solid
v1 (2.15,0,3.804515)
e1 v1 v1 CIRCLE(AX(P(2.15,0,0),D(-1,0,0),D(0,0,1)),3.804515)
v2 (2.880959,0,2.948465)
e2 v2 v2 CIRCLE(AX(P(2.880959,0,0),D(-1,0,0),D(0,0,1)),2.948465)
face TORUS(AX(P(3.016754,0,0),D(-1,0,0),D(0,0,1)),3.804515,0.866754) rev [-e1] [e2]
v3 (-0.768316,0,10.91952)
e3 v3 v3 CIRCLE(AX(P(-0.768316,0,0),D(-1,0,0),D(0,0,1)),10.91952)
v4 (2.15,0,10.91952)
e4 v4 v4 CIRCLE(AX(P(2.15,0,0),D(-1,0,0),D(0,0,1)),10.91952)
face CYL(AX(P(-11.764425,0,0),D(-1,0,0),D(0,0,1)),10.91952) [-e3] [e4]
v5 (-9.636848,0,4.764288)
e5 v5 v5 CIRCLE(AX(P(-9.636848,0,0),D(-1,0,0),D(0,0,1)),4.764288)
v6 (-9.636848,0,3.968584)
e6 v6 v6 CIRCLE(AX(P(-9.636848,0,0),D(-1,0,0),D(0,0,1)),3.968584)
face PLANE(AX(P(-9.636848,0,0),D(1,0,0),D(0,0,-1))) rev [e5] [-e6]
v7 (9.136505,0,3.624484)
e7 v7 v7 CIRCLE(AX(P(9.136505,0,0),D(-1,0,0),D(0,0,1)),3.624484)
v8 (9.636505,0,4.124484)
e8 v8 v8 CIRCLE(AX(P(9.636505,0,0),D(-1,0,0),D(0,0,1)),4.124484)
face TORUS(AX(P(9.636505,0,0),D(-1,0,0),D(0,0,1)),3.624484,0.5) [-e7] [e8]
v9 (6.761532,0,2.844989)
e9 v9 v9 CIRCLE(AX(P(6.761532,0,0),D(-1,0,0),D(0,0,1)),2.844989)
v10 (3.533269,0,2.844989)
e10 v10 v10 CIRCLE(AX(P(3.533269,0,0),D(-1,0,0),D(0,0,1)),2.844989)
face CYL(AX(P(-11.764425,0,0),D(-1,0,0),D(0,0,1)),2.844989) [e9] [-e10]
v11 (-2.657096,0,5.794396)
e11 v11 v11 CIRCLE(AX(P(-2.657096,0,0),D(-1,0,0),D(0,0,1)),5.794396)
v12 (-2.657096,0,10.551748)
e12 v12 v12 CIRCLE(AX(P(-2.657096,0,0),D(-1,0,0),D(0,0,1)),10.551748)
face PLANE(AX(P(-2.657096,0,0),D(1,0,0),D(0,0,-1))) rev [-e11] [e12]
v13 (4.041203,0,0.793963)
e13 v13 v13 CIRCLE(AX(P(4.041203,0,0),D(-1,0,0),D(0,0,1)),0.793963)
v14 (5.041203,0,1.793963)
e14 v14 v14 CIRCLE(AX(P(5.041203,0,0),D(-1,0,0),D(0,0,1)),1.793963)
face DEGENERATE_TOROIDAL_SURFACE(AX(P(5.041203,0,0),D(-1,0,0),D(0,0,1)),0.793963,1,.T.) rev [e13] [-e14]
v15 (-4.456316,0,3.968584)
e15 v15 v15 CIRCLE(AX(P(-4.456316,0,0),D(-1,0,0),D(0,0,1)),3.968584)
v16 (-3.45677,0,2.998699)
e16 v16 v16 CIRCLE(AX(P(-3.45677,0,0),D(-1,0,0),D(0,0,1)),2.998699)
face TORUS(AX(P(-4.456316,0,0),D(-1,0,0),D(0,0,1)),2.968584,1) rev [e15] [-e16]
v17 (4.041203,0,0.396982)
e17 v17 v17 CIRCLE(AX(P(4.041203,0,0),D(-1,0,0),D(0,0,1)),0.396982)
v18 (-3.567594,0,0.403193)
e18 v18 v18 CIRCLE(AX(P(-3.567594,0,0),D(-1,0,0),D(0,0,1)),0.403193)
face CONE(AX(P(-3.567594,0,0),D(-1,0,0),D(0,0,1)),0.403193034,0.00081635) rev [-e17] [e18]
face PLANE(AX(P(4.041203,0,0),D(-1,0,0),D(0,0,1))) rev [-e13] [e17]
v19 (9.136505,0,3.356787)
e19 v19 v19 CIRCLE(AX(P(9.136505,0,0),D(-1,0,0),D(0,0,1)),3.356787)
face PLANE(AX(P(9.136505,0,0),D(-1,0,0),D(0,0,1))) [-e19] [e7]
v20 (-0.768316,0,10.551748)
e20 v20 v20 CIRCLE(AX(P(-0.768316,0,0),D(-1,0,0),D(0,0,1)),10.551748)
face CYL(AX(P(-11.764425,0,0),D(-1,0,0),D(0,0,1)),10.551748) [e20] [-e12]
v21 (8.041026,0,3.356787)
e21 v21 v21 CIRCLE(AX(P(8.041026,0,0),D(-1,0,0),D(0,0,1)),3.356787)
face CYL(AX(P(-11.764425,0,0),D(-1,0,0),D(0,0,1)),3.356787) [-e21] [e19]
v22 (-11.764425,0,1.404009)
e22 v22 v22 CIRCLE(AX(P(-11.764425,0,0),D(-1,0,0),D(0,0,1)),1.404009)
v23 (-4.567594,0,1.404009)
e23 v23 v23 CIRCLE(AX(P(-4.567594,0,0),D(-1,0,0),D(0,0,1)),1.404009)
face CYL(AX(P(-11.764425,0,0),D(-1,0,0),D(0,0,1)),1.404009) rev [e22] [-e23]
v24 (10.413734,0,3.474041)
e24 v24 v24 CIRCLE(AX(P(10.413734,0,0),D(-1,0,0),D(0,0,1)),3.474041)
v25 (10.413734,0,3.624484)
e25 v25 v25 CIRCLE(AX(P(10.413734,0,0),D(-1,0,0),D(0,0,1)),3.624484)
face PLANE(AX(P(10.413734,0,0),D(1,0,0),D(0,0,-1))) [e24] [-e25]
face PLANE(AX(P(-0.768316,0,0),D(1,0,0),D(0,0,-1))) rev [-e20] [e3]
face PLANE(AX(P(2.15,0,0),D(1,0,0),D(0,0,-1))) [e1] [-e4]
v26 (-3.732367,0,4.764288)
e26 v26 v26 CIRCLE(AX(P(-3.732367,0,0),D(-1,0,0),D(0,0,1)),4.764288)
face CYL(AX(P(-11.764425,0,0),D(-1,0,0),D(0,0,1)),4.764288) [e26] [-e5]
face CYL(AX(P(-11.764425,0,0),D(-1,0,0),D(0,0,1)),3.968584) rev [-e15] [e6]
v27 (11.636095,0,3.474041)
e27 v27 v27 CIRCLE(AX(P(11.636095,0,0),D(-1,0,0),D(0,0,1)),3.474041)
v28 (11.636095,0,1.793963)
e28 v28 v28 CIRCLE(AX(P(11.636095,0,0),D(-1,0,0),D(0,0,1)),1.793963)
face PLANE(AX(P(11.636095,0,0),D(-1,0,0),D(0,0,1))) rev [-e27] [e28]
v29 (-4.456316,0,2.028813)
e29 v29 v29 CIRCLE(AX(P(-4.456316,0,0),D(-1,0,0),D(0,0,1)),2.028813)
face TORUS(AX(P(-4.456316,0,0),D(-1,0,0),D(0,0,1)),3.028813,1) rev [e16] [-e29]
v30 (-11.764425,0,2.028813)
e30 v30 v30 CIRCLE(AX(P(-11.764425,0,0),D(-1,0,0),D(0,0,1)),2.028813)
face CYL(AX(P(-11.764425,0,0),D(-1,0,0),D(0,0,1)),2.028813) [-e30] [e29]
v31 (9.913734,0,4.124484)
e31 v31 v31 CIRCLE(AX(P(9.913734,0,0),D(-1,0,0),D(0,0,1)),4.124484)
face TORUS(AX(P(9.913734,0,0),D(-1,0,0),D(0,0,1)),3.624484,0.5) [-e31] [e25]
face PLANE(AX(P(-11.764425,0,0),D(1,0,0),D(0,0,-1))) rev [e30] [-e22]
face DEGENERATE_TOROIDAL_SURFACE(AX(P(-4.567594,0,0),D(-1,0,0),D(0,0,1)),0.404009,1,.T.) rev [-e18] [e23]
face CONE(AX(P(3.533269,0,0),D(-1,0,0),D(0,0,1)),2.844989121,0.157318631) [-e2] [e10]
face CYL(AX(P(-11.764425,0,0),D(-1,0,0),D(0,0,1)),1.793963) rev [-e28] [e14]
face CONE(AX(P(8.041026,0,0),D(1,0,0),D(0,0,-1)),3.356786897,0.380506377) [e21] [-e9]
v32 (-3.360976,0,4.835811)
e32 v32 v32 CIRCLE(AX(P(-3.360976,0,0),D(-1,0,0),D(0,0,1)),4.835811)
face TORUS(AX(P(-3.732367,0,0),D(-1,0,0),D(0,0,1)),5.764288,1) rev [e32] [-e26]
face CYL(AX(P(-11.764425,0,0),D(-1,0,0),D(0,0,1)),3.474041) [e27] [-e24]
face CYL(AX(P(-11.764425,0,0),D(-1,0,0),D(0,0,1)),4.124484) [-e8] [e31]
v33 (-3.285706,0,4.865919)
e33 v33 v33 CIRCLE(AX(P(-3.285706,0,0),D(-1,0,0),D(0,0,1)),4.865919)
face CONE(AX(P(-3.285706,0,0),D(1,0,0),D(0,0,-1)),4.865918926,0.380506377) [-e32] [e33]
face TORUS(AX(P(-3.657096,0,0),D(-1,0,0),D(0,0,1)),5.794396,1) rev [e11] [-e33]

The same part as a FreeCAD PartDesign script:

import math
import FreeCAD as App
import Part
import Sketcher

V = App.Vector
Q = App.Units.Quantity

doc = App.newDocument("Part")
body = doc.addObject("PartDesign::Body", "Body")

sketch1 = doc.addObject("Sketcher::SketchObject", "Sketch")
body.addObject(sketch1)
sketch1.AttachmentSupport = (doc.XY_Plane, [""])
sketch1.MapMode = "FlatFace"
sketch1.addGeometry(Part.LineSegment(V(10.413734, 3.474041, 0), V(10.413734, 3.624484, 0)), False)
sketch1.addGeometry(Part.ArcOfCircle(Part.Circle(V(9.913734, 3.624484, 0), V(0, 0, 1), 0.5), math.radians(0), math.radians(90)), False)
sketch1.addGeometry(Part.LineSegment(V(9.913734, 4.124484, 0), V(9.636505, 4.124484, 0)), False)
sketch1.addGeometry(Part.ArcOfCircle(Part.Circle(V(9.636505, 3.624484, 0), V(0, 0, 1), 0.5), math.radians(90), math.radians(180)), False)
sketch1.addGeometry(Part.LineSegment(V(9.136505, 3.624484, 0), V(9.136505, 3.356787, 0)), False)
sketch1.addGeometry(Part.LineSegment(V(9.136505, 3.356787, 0), V(8.041026, 3.356787, 0)), False)
sketch1.addGeometry(Part.LineSegment(V(8.041026, 3.356787, 0), V(6.761532, 2.844989, 0)), False)
sketch1.addGeometry(Part.LineSegment(V(6.761532, 2.844989, 0), V(3.533269, 2.844989, 0)), False)
sketch1.addGeometry(Part.LineSegment(V(3.533269, 2.844989, 0), V(2.880959, 2.948465, 0)), False)
sketch1.addGeometry(Part.ArcOfCircle(Part.Circle(V(3.016754, 3.804515, 0), V(0, 0, 1), 0.866754), math.radians(180), math.radians(260.986306)), False)
sketch1.addGeometry(Part.LineSegment(V(2.15, 3.804515, 0), V(2.15, 10.91952, 0)), False)
sketch1.addGeometry(Part.LineSegment(V(2.15, 10.91952, 0), V(-0.768316, 10.91952, 0)), False)
sketch1.addGeometry(Part.LineSegment(V(-0.768316, 10.91952, 0), V(-0.768316, 10.551748, 0)), False)
sketch1.addGeometry(Part.LineSegment(V(-0.768316, 10.551748, 0), V(-2.657096, 10.551748, 0)), False)
sketch1.addGeometry(Part.LineSegment(V(-2.657096, 10.551748, 0), V(-2.657096, 5.794396, 0)), False)
sketch1.addGeometry(Part.ArcOfCircle(Part.Circle(V(-3.657096, 5.794396, 0), V(0, 0, 1), 1), math.radians(-68.198591), math.radians(0)), False)
sketch1.addGeometry(Part.LineSegment(V(-3.285706, 4.865919, 0), V(-3.360976, 4.835811, 0)), False)
sketch1.addGeometry(Part.ArcOfCircle(Part.Circle(V(-3.732367, 5.764288, 0), V(0, 0, 1), 1), math.radians(-90), math.radians(-68.19859)), False)
sketch1.addGeometry(Part.LineSegment(V(-3.732367, 4.764288, 0), V(-9.636848, 4.764288, 0)), False)
sketch1.addGeometry(Part.LineSegment(V(-9.636848, 4.764288, 0), V(-9.636848, 3.968584, 0)), False)
sketch1.addGeometry(Part.LineSegment(V(-9.636848, 3.968584, 0), V(-4.456316, 3.968584, 0)), False)
sketch1.addGeometry(Part.ArcOfCircle(Part.Circle(V(-4.456316, 2.968584, 0), V(0, 0, 1), 1), math.radians(1.725694), math.radians(90)), False)
sketch1.addGeometry(Part.ArcOfCircle(Part.Circle(V(-4.456316, 3.028813, 0), V(0, 0, 1), 1), math.radians(-90), math.radians(-1.725694)), False)
sketch1.addGeometry(Part.LineSegment(V(-4.456316, 2.028813, 0), V(-11.764425, 2.028813, 0)), False)
sketch1.addGeometry(Part.LineSegment(V(-11.764425, 2.028813, 0), V(-11.764425, 1.404009, 0)), False)
sketch1.addGeometry(Part.LineSegment(V(-11.764425, 1.404009, 0), V(-4.567594, 1.404009, 0)), False)
sketch1.addGeometry(Part.ArcOfCircle(Part.Circle(V(-4.567594, 0.404009, 0), V(0, 0, 1), 1), math.radians(-0.04676), math.radians(89.999967)), False)
sketch1.addGeometry(Part.LineSegment(V(-3.567594, 0.403193, 0), V(4.041203, 0.396982, 0)), False)
sketch1.addGeometry(Part.LineSegment(V(4.041203, 0.396982, 0), V(4.041203, 0.793963, 0)), False)
sketch1.addGeometry(Part.ArcOfCircle(Part.Circle(V(5.041203, 0.793963, 0), V(0, 0, 1), 1), math.radians(90), math.radians(180)), False)
sketch1.addGeometry(Part.LineSegment(V(5.041203, 1.793963, 0), V(11.636095, 1.793963, 0)), False)
sketch1.addGeometry(Part.LineSegment(V(11.636095, 1.793963, 0), V(11.636095, 3.474041, 0)), False)
sketch1.addGeometry(Part.LineSegment(V(11.636095, 3.474041, 0), V(10.413734, 3.474041, 0)), False)
sketch1.addConstraint(Sketcher.Constraint("Coincident", 0, 2, 1, 1))
sketch1.addConstraint(Sketcher.Constraint("Coincident", 1, 2, 2, 1))
sketch1.addConstraint(Sketcher.Constraint("Coincident", 2, 2, 3, 1))
sketch1.addConstraint(Sketcher.Constraint("Coincident", 3, 2, 4, 1))
sketch1.addConstraint(Sketcher.Constraint("Coincident", 4, 2, 5, 1))
sketch1.addConstraint(Sketcher.Constraint("Coincident", 5, 2, 6, 1))
sketch1.addConstraint(Sketcher.Constraint("Coincident", 6, 2, 7, 1))
sketch1.addConstraint(Sketcher.Constraint("Coincident", 7, 2, 8, 1))
sketch1.addConstraint(Sketcher.Constraint("Coincident", 8, 2, 9, 2))
sketch1.addConstraint(Sketcher.Constraint("Coincident", 9, 1, 10, 1))
sketch1.addConstraint(Sketcher.Constraint("Coincident", 10, 2, 11, 1))
sketch1.addConstraint(Sketcher.Constraint("Coincident", 11, 2, 12, 1))
sketch1.addConstraint(Sketcher.Constraint("Coincident", 12, 2, 13, 1))
sketch1.addConstraint(Sketcher.Constraint("Coincident", 13, 2, 14, 1))
sketch1.addConstraint(Sketcher.Constraint("Coincident", 14, 2, 15, 2))
sketch1.addConstraint(Sketcher.Constraint("Coincident", 15, 1, 16, 1))
sketch1.addConstraint(Sketcher.Constraint("Coincident", 16, 2, 17, 2))
sketch1.addConstraint(Sketcher.Constraint("Coincident", 17, 1, 18, 1))
sketch1.addConstraint(Sketcher.Constraint("Coincident", 18, 2, 19, 1))
sketch1.addConstraint(Sketcher.Constraint("Coincident", 19, 2, 20, 1))
sketch1.addConstraint(Sketcher.Constraint("Coincident", 20, 2, 21, 2))
sketch1.addConstraint(Sketcher.Constraint("Coincident", 21, 1, 22, 2))
sketch1.addConstraint(Sketcher.Constraint("Coincident", 22, 1, 23, 1))
sketch1.addConstraint(Sketcher.Constraint("Coincident", 23, 2, 24, 1))
sketch1.addConstraint(Sketcher.Constraint("Coincident", 24, 2, 25, 1))
sketch1.addConstraint(Sketcher.Constraint("Coincident", 25, 2, 26, 2))
sketch1.addConstraint(Sketcher.Constraint("Coincident", 26, 1, 27, 1))
sketch1.addConstraint(Sketcher.Constraint("Coincident", 27, 2, 28, 1))
sketch1.addConstraint(Sketcher.Constraint("Coincident", 28, 2, 29, 2))
sketch1.addConstraint(Sketcher.Constraint("Coincident", 29, 1, 30, 1))
sketch1.addConstraint(Sketcher.Constraint("Coincident", 30, 2, 31, 1))
sketch1.addConstraint(Sketcher.Constraint("Coincident", 31, 2, 32, 1))
sketch1.addConstraint(Sketcher.Constraint("Coincident", 32, 2, 0, 1))
sketch1.addConstraint(Sketcher.Constraint("Vertical", 0))
sketch1.addConstraint(Sketcher.Constraint("Horizontal", 2))
sketch1.addConstraint(Sketcher.Constraint("Vertical", 4))
sketch1.addConstraint(Sketcher.Constraint("Horizontal", 5))
sketch1.addConstraint(Sketcher.Constraint("Horizontal", 7))
sketch1.addConstraint(Sketcher.Constraint("Vertical", 10))
sketch1.addConstraint(Sketcher.Constraint("Horizontal", 11))
sketch1.addConstraint(Sketcher.Constraint("Vertical", 12))
sketch1.addConstraint(Sketcher.Constraint("Horizontal", 13))
sketch1.addConstraint(Sketcher.Constraint("Vertical", 14))
sketch1.addConstraint(Sketcher.Constraint("Horizontal", 18))
sketch1.addConstraint(Sketcher.Constraint("Vertical", 19))
sketch1.addConstraint(Sketcher.Constraint("Horizontal", 20))
sketch1.addConstraint(Sketcher.Constraint("Horizontal", 23))
sketch1.addConstraint(Sketcher.Constraint("Vertical", 24))
sketch1.addConstraint(Sketcher.Constraint("Horizontal", 25))
sketch1.addConstraint(Sketcher.Constraint("Vertical", 28))
sketch1.addConstraint(Sketcher.Constraint("Horizontal", 30))
sketch1.addConstraint(Sketcher.Constraint("Vertical", 31))
sketch1.addConstraint(Sketcher.Constraint("Horizontal", 32))
sketch1.addConstraint(Sketcher.Constraint("Radius", 15, Q("1 mm")))
sketch1.addConstraint(Sketcher.Constraint("Radius", 17, Q("1 mm")))
sketch1.addConstraint(Sketcher.Constraint("Radius", 21, Q("1 mm")))
sketch1.addConstraint(Sketcher.Constraint("Radius", 22, Q("1 mm")))
sketch1.addConstraint(Sketcher.Constraint("Radius", 26, Q("1 mm")))
sketch1.addConstraint(Sketcher.Constraint("Radius", 29, Q("1 mm")))
sketch1.addConstraint(Sketcher.Constraint("Radius", 1, Q("0.5 mm")))
sketch1.addConstraint(Sketcher.Constraint("Radius", 3, Q("0.5 mm")))
sketch1.addConstraint(Sketcher.Constraint("DistanceX", 25, 2, 26, 1, Q("0.999999 mm")))
sketch1.addConstraint(Sketcher.Constraint("DistanceX", 28, 2, 29, 1, Q("1 mm")))
sketch1.addConstraint(Sketcher.Constraint("DistanceY", 28, 2, 29, 1, Q("1 mm")))
sketch1.addConstraint(Sketcher.Constraint("DistanceX", 1, 2, 0, 2, Q("0.5 mm")))
sketch1.addConstraint(Sketcher.Constraint("DistanceY", 0, 2, 1, 2, Q("0.5 mm")))
sketch1.addConstraint(Sketcher.Constraint("DistanceX", 3, 2, 2, 2, Q("0.5 mm")))
sketch1.addConstraint(Sketcher.Constraint("DistanceY", 3, 2, 2, 2, Q("0.5 mm")))
sketch1.addConstraint(Sketcher.Constraint("DistanceX", -1, 1, 9, 1, Q("2.15 mm")))
sketch1.addConstraint(Sketcher.Constraint("Radius", 9, Q("0.866754 mm")))
sketch1.addConstraint(Sketcher.Constraint("Distance", 27, Q("7.6088 mm")))
sketch1.addConstraint(Sketcher.Constraint("DistanceX", 2, 2, 2, 1, Q("0.277229 mm")))
sketch1.addConstraint(Sketcher.Constraint("DistanceX", 5, 2, 5, 1, Q("1.095479 mm")))
sketch1.addConstraint(Sketcher.Constraint("DistanceX", 13, 2, 13, 1, Q("1.88878 mm")))
sketch1.addConstraint(Sketcher.Constraint("DistanceX", 18, 2, 18, 1, Q("5.904481 mm")))
sketch1.addConstraint(Sketcher.Constraint("DistanceX", 20, 1, 20, 2, Q("5.180532 mm")))
sketch1.addConstraint(Sketcher.Constraint("DistanceX", 23, 2, 23, 1, Q("7.308109 mm")))
sketch1.addConstraint(Sketcher.Constraint("DistanceX", 25, 1, 25, 2, Q("7.196831 mm")))
sketch1.addConstraint(Sketcher.Constraint("DistanceX", 32, 2, 32, 1, Q("1.222361 mm")))
sketch1.addConstraint(Sketcher.Constraint("DistanceY", 28, 1, 28, 2, Q("0.396982 mm")))
sketch1.addConstraint(Sketcher.Constraint("DistanceY", -1, 1, 21, 1, Q("2.998699 mm")))
sketch1.addConstraint(Sketcher.Constraint("DistanceX", 15, 3, 3, 3, Q("13.293601 mm")))
sketch1.addConstraint(Sketcher.Constraint("DistanceX", 17, 3, 1, 3, Q("13.6461 mm")))
sketch1.addConstraint(Sketcher.Constraint("DistanceY", 21, 3, 3, 3, Q("0.655899 mm")))
sketch1.addConstraint(Sketcher.Constraint("DistanceY", 22, 3, 9, 3, Q("0.775701 mm")))
sketch1.addConstraint(Sketcher.Constraint("DistanceX", 29, 3, 3, 3, Q("4.595301 mm")))
sketch1.addConstraint(Sketcher.Constraint("DistanceY", 29, 3, 8, 2, Q("2.154501 mm")))
sketch1.addConstraint(Sketcher.Constraint("Distance", 16, Q("0.081068 mm")))
sketch1.addConstraint(Sketcher.Constraint("DistanceX", 7, 2, 7, 1, Q("3.228263 mm")))
sketch1.addConstraint(Sketcher.Constraint("DistanceX", 11, 2, 11, 1, Q("2.918316 mm")))
sketch1.addConstraint(Sketcher.Constraint("DistanceY", 0, 1, 0, 2, Q("0.150442 mm")))
sketch1.addConstraint(Sketcher.Constraint("DistanceY", 4, 2, 4, 1, Q("0.267697 mm")))
sketch1.addConstraint(Sketcher.Constraint("DistanceY", 10, 1, 10, 2, Q("7.115006 mm")))
sketch1.addConstraint(Sketcher.Constraint("DistanceY", 12, 2, 12, 1, Q("0.367772 mm")))
sketch1.addConstraint(Sketcher.Constraint("DistanceY", 14, 2, 14, 1, Q("4.757353 mm")))
sketch1.addConstraint(Sketcher.Constraint("DistanceY", 19, 2, 19, 1, Q("0.795703 mm")))
sketch1.addConstraint(Sketcher.Constraint("DistanceY", 24, 2, 24, 1, Q("0.624804 mm")))
sketch1.addConstraint(Sketcher.Constraint("DistanceY", 31, 1, 31, 2, Q("1.680078 mm")))
sketch1.addConstraint(Sketcher.Constraint("DistanceY", -1, 1, 26, 3, Q("0.404009 mm")))
sketch1.addConstraint(Sketcher.Constraint("DistanceX", -1, 1, 6, 2, Q("6.761532 mm")))
sketch1.addConstraint(Sketcher.Constraint("DistanceY", -1, 1, 6, 2, Q("2.844989 mm")))
sketch1.addConstraint(Sketcher.Constraint("DistanceX", -1, 1, 8, 2, Q("2.880959 mm")))
sketch1.addConstraint(Sketcher.Constraint("DistanceY", -1, 1, 10, 2, Q("10.91952 mm")))
sketch1.addConstraint(Sketcher.Constraint("DistanceY", -1, 1, 15, 1, Q("4.865919 mm")))
sketch1.addConstraint(Sketcher.Constraint("DistanceY", -1, 1, 16, 2, Q("4.835811 mm")))
sketch1.addConstraint(Sketcher.Constraint("DistanceX", 21, 1, -1, 1, Q("3.45677 mm")))
sketch1.addConstraint(Sketcher.Constraint("DistanceX", 17, 1, 16, 2, Q("0.371391 mm")))
sketch1.addConstraint(Sketcher.Constraint("DistanceY", 26, 1, 22, 1, Q("1.62562 mm")))
revolution = doc.addObject("PartDesign::Revolution", "Revolution")
body.addObject(revolution)
revolution.Profile = sketch1
revolution.ReferenceAxis = (sketch1, ["H_Axis"])
revolution.Angle = 360

doc.recompute()
